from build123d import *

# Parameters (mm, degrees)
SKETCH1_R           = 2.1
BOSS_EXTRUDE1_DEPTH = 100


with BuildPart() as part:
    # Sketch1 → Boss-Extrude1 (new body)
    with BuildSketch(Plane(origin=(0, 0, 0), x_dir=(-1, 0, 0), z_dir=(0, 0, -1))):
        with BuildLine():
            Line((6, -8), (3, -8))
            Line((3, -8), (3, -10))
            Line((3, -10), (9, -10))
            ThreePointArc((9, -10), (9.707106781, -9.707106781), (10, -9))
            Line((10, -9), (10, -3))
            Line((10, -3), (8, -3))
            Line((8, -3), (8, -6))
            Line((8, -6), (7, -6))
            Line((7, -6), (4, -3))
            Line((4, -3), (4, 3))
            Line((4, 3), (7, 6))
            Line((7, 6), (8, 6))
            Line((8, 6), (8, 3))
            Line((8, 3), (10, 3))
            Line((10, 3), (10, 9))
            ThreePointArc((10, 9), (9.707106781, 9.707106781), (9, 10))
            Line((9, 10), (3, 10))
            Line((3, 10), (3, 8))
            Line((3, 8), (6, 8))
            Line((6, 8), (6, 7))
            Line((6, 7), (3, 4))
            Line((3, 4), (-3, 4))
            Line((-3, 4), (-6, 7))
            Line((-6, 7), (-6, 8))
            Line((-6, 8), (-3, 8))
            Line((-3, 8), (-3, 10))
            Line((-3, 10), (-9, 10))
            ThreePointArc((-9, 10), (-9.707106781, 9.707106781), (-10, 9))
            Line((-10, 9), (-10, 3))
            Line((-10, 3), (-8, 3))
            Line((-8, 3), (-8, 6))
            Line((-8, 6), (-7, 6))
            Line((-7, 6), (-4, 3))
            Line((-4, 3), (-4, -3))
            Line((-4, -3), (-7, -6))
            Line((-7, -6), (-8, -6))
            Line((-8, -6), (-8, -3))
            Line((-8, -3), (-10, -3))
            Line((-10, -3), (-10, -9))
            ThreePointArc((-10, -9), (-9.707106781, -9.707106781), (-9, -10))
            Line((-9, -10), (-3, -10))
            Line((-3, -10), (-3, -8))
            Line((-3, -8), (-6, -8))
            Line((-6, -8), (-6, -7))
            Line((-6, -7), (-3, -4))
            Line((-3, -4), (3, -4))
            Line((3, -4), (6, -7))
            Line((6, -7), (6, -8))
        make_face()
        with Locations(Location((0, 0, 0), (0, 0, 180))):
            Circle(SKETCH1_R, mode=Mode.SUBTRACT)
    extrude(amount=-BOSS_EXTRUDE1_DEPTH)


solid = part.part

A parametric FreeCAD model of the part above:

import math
import FreeCAD as App
import Part
import Sketcher

V = App.Vector

doc = App.newDocument("Part")
body = doc.addObject("PartDesign::Body", "Body")

sketch1 = body.newObject("Sketcher::SketchObject", "Sketch")
sketch1.AttachmentSupport = (doc.getObject("XY_Plane"), [""])
sketch1.MapMode = "FlatFace"
sketch1.addGeometry(Part.LineSegment(V(-6, -8, 0), V(-3, -8, 0)), False)
sketch1.addGeometry(Part.LineSegment(V(-3, -8, 0), V(-3, -10, 0)), False)
sketch1.addGeometry(Part.LineSegment(V(-3, -10, 0), V(-9, -10, 0)), False)
sketch1.addGeometry(Part.ArcOfCircle(Part.Circle(V(-9, -9, 0), V(0, 0, 1), 1), math.radians(-180), math.radians(-90)), False)
sketch1.addGeometry(Part.LineSegment(V(-10, -9, 0), V(-10, -3, 0)), False)
sketch1.addGeometry(Part.LineSegment(V(-10, -3, 0), V(-8, -3, 0)), False)
sketch1.addGeometry(Part.LineSegment(V(-8, -3, 0), V(-8, -6, 0)), False)
sketch1.addGeometry(Part.LineSegment(V(-8, -6, 0), V(-7, -6, 0)), False)
sketch1.addGeometry(Part.LineSegment(V(-7, -6, 0), V(-4, -3, 0)), False)
sketch1.addGeometry(Part.LineSegment(V(-4, -3, 0), V(-4, 3, 0)), False)
sketch1.addGeometry(Part.LineSegment(V(-4, 3, 0), V(-7, 6, 0)), False)
sketch1.addGeometry(Part.LineSegment(V(-7, 6, 0), V(-8, 6, 0)), False)
sketch1.addGeometry(Part.LineSegment(V(-8, 6, 0), V(-8, 3, 0)), False)
sketch1.addGeometry(Part.LineSegment(V(-8, 3, 0), V(-10, 3, 0)), False)
sketch1.addGeometry(Part.LineSegment(V(-10, 3, 0), V(-10, 9, 0)), False)
sketch1.addGeometry(Part.ArcOfCircle(Part.Circle(V(-9, 9, 0), V(0, 0, 1), 1), math.radians(90), math.radians(180)), False)
sketch1.addGeometry(Part.LineSegment(V(-9, 10, 0), V(-3, 10, 0)), False)
sketch1.addGeometry(Part.LineSegment(V(-3, 10, 0), V(-3, 8, 0)), False)
sketch1.addGeometry(Part.LineSegment(V(-3, 8, 0), V(-6, 8, 0)), False)
sketch1.addGeometry(Part.LineSegment(V(-6, 8, 0), V(-6, 7, 0)), False)
sketch1.addGeometry(Part.LineSegment(V(-6, 7, 0), V(-3, 4, 0)), False)
sketch1.addGeometry(Part.LineSegment(V(-3, 4, 0), V(3, 4, 0)), False)
sketch1.addGeometry(Part.LineSegment(V(3, 4, 0), V(6, 7, 0)), False)
sketch1.addGeometry(Part.LineSegment(V(6, 7, 0), V(6, 8, 0)), False)
sketch1.addGeometry(Part.LineSegment(V(6, 8, 0), V(3, 8, 0)), False)
sketch1.addGeometry(Part.LineSegment(V(3, 8, 0), V(3, 10, 0)), False)
sketch1.addGeometry(Part.LineSegment(V(3, 10, 0), V(9, 10, 0)), False)
sketch1.addGeometry(Part.ArcOfCircle(Part.Circle(V(9, 9, 0), V(0, 0, 1), 1), math.radians(0), math.radians(90)), False)
sketch1.addGeometry(Part.LineSegment(V(10, 9, 0), V(10, 3, 0)), False)
sketch1.addGeometry(Part.LineSegment(V(10, 3, 0), V(8, 3, 0)), False)
sketch1.addGeometry(Part.LineSegment(V(8, 3, 0), V(8, 6, 0)), False)
sketch1.addGeometry(Part.LineSegment(V(8, 6, 0), V(7, 6, 0)), False)
sketch1.addGeometry(Part.LineSegment(V(7, 6, 0), V(4, 3, 0)), False)
sketch1.addGeometry(Part.LineSegment(V(4, 3, 0), V(4, -3, 0)), False)
sketch1.addGeometry(Part.LineSegment(V(4, -3, 0), V(7, -6, 0)), False)
sketch1.addGeometry(Part.LineSegment(V(7, -6, 0), V(8, -6, 0)), False)
sketch1.addGeometry(Part.LineSegment(V(8, -6, 0), V(8, -3, 0)), False)
sketch1.addGeometry(Part.LineSegment(V(8, -3, 0), V(10, -3, 0)), False)
sketch1.addGeometry(Part.LineSegment(V(10, -3, 0), V(10, -9, 0)), False)
sketch1.addGeometry(Part.ArcOfCircle(Part.Circle(V(9, -9, 0), V(0, 0, 1), 1), math.radians(-90), math.radians(0)), False)
sketch1.addGeometry(Part.LineSegment(V(9, -10, 0), V(3, -10, 0)), False)
sketch1.addGeometry(Part.LineSegment(V(3, -10, 0), V(3, -8, 0)), False)
sketch1.addGeometry(Part.LineSegment(V(3, -8, 0), V(6, -8, 0)), False)
sketch1.addGeometry(Part.LineSegment(V(6, -8, 0), V(6, -7, 0)), False)
sketch1.addGeometry(Part.LineSegment(V(6, -7, 0), V(3, -4, 0)), False)
sketch1.addGeometry(Part.LineSegment(V(3, -4, 0), V(-3, -4, 0)), False)
sketch1.addGeometry(Part.LineSegment(V(-3, -4, 0), V(-6, -7, 0)), False)
sketch1.addGeometry(Part.LineSegment(V(-6, -7, 0), V(-6, -8, 0)), False)
sketch1.addGeometry(Part.Circle(V(0, 0, 0), V(0, 0, 1), 2.1), False)
sketch1.addConstraint(Sketcher.Constraint("Coincident", 0, 2, 1, 1))
sketch1.addConstraint(Sketcher.Constraint("Coincident", 1, 2, 2, 1))
sketch1.addConstraint(Sketcher.Constraint("Tangent", 2, 2, 3, 2))
sketch1.addConstraint(Sketcher.Constraint("Tangent", 3, 1, 4, 1))
sketch1.addConstraint(Sketcher.Constraint("Coincident", 4, 2, 5, 1))
sketch1.addConstraint(Sketcher.Constraint("Coincident", 5, 2, 6, 1))
sketch1.addConstraint(Sketcher.Constraint("Coincident", 6, 2, 7, 1))
sketch1.addConstraint(Sketcher.Constraint("Coincident", 7, 2, 8, 1))
sketch1.addConstraint(Sketcher.Constraint("Coincident", 8, 2, 9, 1))
sketch1.addConstraint(Sketcher.Constraint("Coincident", 9, 2, 10, 1))
sketch1.addConstraint(Sketcher.Constraint("Coincident", 10, 2, 11, 1))
sketch1.addConstraint(Sketcher.Constraint("Coincident", 11, 2, 12, 1))
sketch1.addConstraint(Sketcher.Constraint("Coincident", 12, 2, 13, 1))
sketch1.addConstraint(Sketcher.Constraint("Coincident", 13, 2, 14, 1))
sketch1.addConstraint(Sketcher.Constraint("Tangent", 14, 2, 15, 2))
sketch1.addConstraint(Sketcher.Constraint("Tangent", 15, 1, 16, 1))
sketch1.addConstraint(Sketcher.Constraint("Coincident", 16, 2, 17, 1))
sketch1.addConstraint(Sketcher.Constraint("Coincident", 17, 2, 18, 1))
sketch1.addConstraint(Sketcher.Constraint("Coincident", 18, 2, 19, 1))
sketch1.addConstraint(Sketcher.Constraint("Coincident", 19, 2, 20, 1))
sketch1.addConstraint(Sketcher.Constraint("Coincident", 20, 2, 21, 1))
sketch1.addConstraint(Sketcher.Constraint("Coincident", 21, 2, 22, 1))
sketch1.addConstraint(Sketcher.Constraint("Coincident", 22, 2, 23, 1))
sketch1.addConstraint(Sketcher.Constraint("Coincident", 23, 2, 24, 1))
sketch1.addConstraint(Sketcher.Constraint("Coincident", 24, 2, 25, 1))
sketch1.addConstraint(Sketcher.Constraint("Coincident", 25, 2, 26, 1))
sketch1.addConstraint(Sketcher.Constraint("Tangent", 26, 2, 27, 2))
sketch1.addConstraint(Sketcher.Constraint("Tangent", 27, 1, 28, 1))
sketch1.addConstraint(Sketcher.Constraint("Coincident", 28, 2, 29, 1))
sketch1.addConstraint(Sketcher.Constraint("Coincident", 29, 2, 30, 1))
sketch1.addConstraint(Sketcher.Constraint("Coincident", 30, 2, 31, 1))
sketch1.addConstraint(Sketcher.Constraint("Coincident", 31, 2, 32, 1))
sketch1.addConstraint(Sketcher.Constraint("Coincident", 32, 2, 33, 1))
sketch1.addConstraint(Sketcher.Constraint("Coincident", 33, 2, 34, 1))
sketch1.addConstraint(Sketcher.Constraint("Coincident", 34, 2, 35, 1))
sketch1.addConstraint(Sketcher.Constraint("Coincident", 35, 2, 36, 1))
sketch1.addConstraint(Sketcher.Constraint("Coincident", 36, 2, 37, 1))
sketch1.addConstraint(Sketcher.Constraint("Coincident", 37, 2, 38, 1))
sketch1.addConstraint(Sketcher.Constraint("Tangent", 38, 2, 39, 2))
sketch1.addConstraint(Sketcher.Constraint("Tangent", 39, 1, 40, 1))
sketch1.addConstraint(Sketcher.Constraint("Coincident", 40, 2, 41, 1))
sketch1.addConstraint(Sketcher.Constraint("Coincident", 41, 2, 42, 1))
sketch1.addConstraint(Sketcher.Constraint("Coincident", 42, 2, 43, 1))
sketch1.addConstraint(Sketcher.Constraint("Coincident", 43, 2, 44, 1))
sketch1.addConstraint(Sketcher.Constraint("Coincident", 44, 2, 45, 1))
sketch1.addConstraint(Sketcher.Constraint("Coincident", 45, 2, 46, 1))
sketch1.addConstraint(Sketcher.Constraint("Coincident", 46, 2, 47, 1))
sketch1.addConstraint(Sketcher.Constraint("Coincident", 47, 2, 0, 1))
sketch1.addConstraint(Sketcher.Constraint("Horizontal", 0))
sketch1.addConstraint(Sketcher.Constraint("Vertical", 1))
sketch1.addConstraint(Sketcher.Constraint("Horizontal", 2))
sketch1.addConstraint(Sketcher.Constraint("Vertical", 4))
sketch1.addConstraint(Sketcher.Constraint("Horizontal", 5))
sketch1.addConstraint(Sketcher.Constraint("Vertical", 6))
sketch1.addConstraint(Sketcher.Constraint("Horizontal", 7))
sketch1.addConstraint(Sketcher.Constraint("Vertical", 9))
sketch1.addConstraint(Sketcher.Constraint("Horizontal", 11))
sketch1.addConstraint(Sketcher.Constraint("Vertical", 12))
sketch1.addConstraint(Sketcher.Constraint("Horizontal", 13))
sketch1.addConstraint(Sketcher.Constraint("Vertical", 14))
sketch1.addConstraint(Sketcher.Constraint("Horizontal", 16))
sketch1.addConstraint(Sketcher.Constraint("Vertical", 17))
sketch1.addConstraint(Sketcher.Constraint("Horizontal", 18))
sketch1.addConstraint(Sketcher.Constraint("Vertical", 19))
sketch1.addConstraint(Sketcher.Constraint("Horizontal", 21))
sketch1.addConstraint(Sketcher.Constraint("Vertical", 23))
sketch1.addConstraint(Sketcher.Constraint("Horizontal", 24))
sketch1.addConstraint(Sketcher.Constraint("Vertical", 25))
sketch1.addConstraint(Sketcher.Constraint("Horizontal", 26))
sketch1.addConstraint(Sketcher.Constraint("Vertical", 28))
sketch1.addConstraint(Sketcher.Constraint("Horizontal", 29))
sketch1.addConstraint(Sketcher.Constraint("Vertical", 30))
sketch1.addConstraint(Sketcher.Constraint("Horizontal", 31))
sketch1.addConstraint(Sketcher.Constraint("Vertical", 33))
sketch1.addConstraint(Sketcher.Constraint("Horizontal", 35))
sketch1.addConstraint(Sketcher.Constraint("Vertical", 36))
sketch1.addConstraint(Sketcher.Constraint("Horizontal", 37))
sketch1.addConstraint(Sketcher.Constraint("Vertical", 38))
sketch1.addConstraint(Sketcher.Constraint("Horizontal", 40))
sketch1.addConstraint(Sketcher.Constraint("Vertical", 41))
sketch1.addConstraint(Sketcher.Constraint("Horizontal", 42))
sketch1.addConstraint(Sketcher.Constraint("Vertical", 43))
sketch1.addConstraint(Sketcher.Constraint("Horizontal", 45))
sketch1.addConstraint(Sketcher.Constraint("Vertical", 47))
sketch1.addConstraint(Sketcher.Constraint("Coincident", 48, 3, -1, 1))
sketch1.addConstraint(Sketcher.Constraint("Equal", 3, 15))
sketch1.addConstraint(Sketcher.Constraint("Equal", 15, 27))
sketch1.addConstraint(Sketcher.Constraint("Equal", 27, 39))
sketch1.addConstraint(Sketcher.Constraint("Symmetric", 3, 3, 27, 3, -1, 1))
sketch1.addConstraint(Sketcher.Constraint("Symmetric", 15, 3, 39, 3, -1, 1))
sketch1.addConstraint(Sketcher.Constraint("Symmetric", 0, 2, 24, 2, -1, 1))
sketch1.addConstraint(Sketcher.Constraint("Symmetric", 5, 2, 29, 2, -1, 1))
sketch1.addConstraint(Sketcher.Constraint("Symmetric", 7, 2, 31, 2, -1, 1))
sketch1.addConstraint(Sketcher.Constraint("Symmetric", 8, 2, 32, 2, -1, 1))
sketch1.addConstraint(Sketcher.Constraint("Symmetric", 10, 2, 34, 2, -1, 1))
sketch1.addConstraint(Sketcher.Constraint("Symmetric", 12, 2, 36, 2, -1, 1))
sketch1.addConstraint(Sketcher.Constraint("Symmetric", 17, 2, 41, 2, -1, 1))
sketch1.addConstraint(Sketcher.Constraint("Symmetric", 19, 2, 43, 2, -1, 1))
sketch1.addConstraint(Sketcher.Constraint("Symmetric", 20, 2, 44, 2, -1, 1))
sketch1.addConstraint(Sketcher.Constraint("Symmetric", 22, 2, 46, 2, -1, 1))
sketch1.addConstraint(Sketcher.Constraint("Symmetric", 15, 3, 27, 3, -2))
sketch1.addConstraint(Sketcher.Constraint("Symmetric", 19, 2, 22, 2, -2))
sketch1.addConstraint(Sketcher.Constraint("Symmetric", 17, 2, 24, 2, -2))
sketch1.addConstraint(Sketcher.Constraint("Symmetric", 12, 2, 29, 2, -2))
sketch1.addConstraint(Sketcher.Constraint("Symmetric", 10, 2, 31, 2, -2))
sketch1.addConstraint(Sketcher.Constraint("Perpendicular", 8, 10))
sketch1.addConstraint(Sketcher.Constraint("Parallel", 10, 20))
sketch1.addConstraint(Sketcher.Constraint("Perpendicular", 20, 22))
sketch1.addConstraint(Sketcher.Constraint("Perpendicular", 32, 34))
sketch1.addConstraint(Sketcher.Constraint("Perpendicular", 44, 46))
sketch1.addConstraint(Sketcher.Constraint("Horizontal", 5, 2, 8, 2))
sketch1.addConstraint(Sketcher.Constraint("Horizontal", 9, 2, 12, 2))
sketch1.addConstraint(Sketcher.Constraint("Vertical", 17, 2, 20, 2))
sketch1.addConstraint(Sketcher.Constraint("Equal", 16, 21))
sketch1.addConstraint(Sketcher.Constraint("Equal", 37, 1))
sketch1.addConstraint(Sketcher.Constraint("Equal", 45, 4))
sketch1.addConstraint(Sketcher.Constraint("Equal", 42, 6))
sketch1.addConstraint(Sketcher.Constraint("Equal", 4, 9))
sketch1.addConstraint(Sketcher.Constraint("Equal", 35, 19))
sketch1.addConstraint(Sketcher.Constraint("Radius", 3, 1.0))
sketch1.addConstraint(Sketcher.Constraint("Diameter", 48, 4.2))
sketch1.addConstraint(Sketcher.Constraint("DistanceX", 0, 1, 0, 2, 3.0))
sketch1.addConstraint(Sketcher.Constraint("DistanceX", 2, 2, 2, 1, 6.0))
sketch1.addConstraint(Sketcher.Constraint("DistanceX", 5, 1, 5, 2, 2.0))
sketch1.addConstraint(Sketcher.Constraint("DistanceX", 7, 1, 7, 2, 1.0))
pad1 = body.newObject("PartDesign::Pad", "Pad")
pad1.Profile = sketch1
pad1.Length = 100

doc.recompute()
